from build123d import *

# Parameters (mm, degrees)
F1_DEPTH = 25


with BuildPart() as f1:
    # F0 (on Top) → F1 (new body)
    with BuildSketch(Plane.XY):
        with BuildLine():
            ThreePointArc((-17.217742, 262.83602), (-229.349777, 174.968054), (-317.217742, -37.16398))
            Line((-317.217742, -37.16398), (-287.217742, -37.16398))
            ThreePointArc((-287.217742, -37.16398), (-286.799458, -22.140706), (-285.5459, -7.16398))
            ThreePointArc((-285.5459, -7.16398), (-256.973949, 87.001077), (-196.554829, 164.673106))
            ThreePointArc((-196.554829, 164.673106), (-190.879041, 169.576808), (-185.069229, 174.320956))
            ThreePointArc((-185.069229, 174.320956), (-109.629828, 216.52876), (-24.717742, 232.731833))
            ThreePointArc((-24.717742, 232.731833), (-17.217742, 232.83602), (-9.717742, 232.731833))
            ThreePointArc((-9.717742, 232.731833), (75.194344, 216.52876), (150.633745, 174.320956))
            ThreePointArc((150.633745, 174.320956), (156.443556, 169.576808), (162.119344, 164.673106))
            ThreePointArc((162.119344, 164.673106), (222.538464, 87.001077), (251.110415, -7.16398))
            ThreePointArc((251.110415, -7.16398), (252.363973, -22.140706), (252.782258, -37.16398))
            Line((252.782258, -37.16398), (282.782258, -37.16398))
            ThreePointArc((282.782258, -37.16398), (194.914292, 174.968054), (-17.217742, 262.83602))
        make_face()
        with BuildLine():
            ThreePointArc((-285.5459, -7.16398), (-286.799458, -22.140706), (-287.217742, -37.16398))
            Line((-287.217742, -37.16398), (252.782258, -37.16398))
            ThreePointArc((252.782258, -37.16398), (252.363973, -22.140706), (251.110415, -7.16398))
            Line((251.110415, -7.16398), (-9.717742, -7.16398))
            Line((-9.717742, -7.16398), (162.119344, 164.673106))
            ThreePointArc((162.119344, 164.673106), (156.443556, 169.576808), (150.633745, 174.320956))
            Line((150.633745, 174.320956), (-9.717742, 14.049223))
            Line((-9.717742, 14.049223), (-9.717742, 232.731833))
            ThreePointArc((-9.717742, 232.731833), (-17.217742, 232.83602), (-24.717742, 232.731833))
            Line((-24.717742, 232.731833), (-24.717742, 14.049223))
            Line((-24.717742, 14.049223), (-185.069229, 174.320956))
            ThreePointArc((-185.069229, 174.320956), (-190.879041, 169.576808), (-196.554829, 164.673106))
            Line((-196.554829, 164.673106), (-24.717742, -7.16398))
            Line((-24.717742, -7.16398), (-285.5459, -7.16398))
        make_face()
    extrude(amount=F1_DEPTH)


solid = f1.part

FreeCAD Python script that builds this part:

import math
import FreeCAD as App
import Part
import Sketcher

V = App.Vector
Q = App.Units.Quantity

doc = App.newDocument("Part")
body = doc.addObject("PartDesign::Body", "Body")

# Sketch on XY plane
sketch1 = body.newObject("Sketcher::SketchObject", "Sketch")
sketch1.AttachmentSupport = (doc.getObject("XY_Plane"), [""])
sketch1.MapMode = "FlatFace"
sketch1.addGeometry([
    Part.ArcOfCircle(Part.Circle(V(-17.217742, -37.16398, 0), V(0, 0, 1), 300), math.radians(90), math.radians(180)),  # 0
    Part.LineSegment(V(-317.217742, -37.16398, 0), V(282.782258, -37.16398, 0)),  # 1
    Part.ArcOfCircle(Part.Circle(V(-17.217743, -37.163981, 0), V(0, 0, 1), 300.000001), math.radians(0), math.radians(90)),  # 2
    Part.ArcOfCircle(Part.Circle(V(-17.217741, -37.163981, 0), V(0, 0, 1), 270.000002), math.radians(131.621857), math.radians(173.62063)),  # 3
    Part.LineSegment(V(-196.554829, 164.673106, 0), V(-24.717742, -7.16398, 0)),  # 4
    Part.LineSegment(V(-24.717742, -7.16398, 0), V(-285.5459, -7.16398, 0)),  # 5
    Part.ArcOfCircle(Part.Circle(V(-17.217743, -37.163976, 0), V(0, 0, 1), 269.999996), math.radians(91.591754), math.radians(128.438349)),  # 6
    Part.LineSegment(V(-24.717742, 232.731833, 0), V(-24.717742, 14.049223, 0)),  # 7
    Part.LineSegment(V(-24.717742, 14.049223, 0), V(-185.069229, 174.320956, 0)),  # 8
    Part.ArcOfCircle(Part.Circle(V(-17.217741, -37.163976, 0), V(0, 0, 1), 269.999996), math.radians(51.561651), math.radians(88.408246)),  # 9
    Part.LineSegment(V(150.633745, 174.320956, 0), V(-9.717742, 14.049223, 0)),  # 10
    Part.LineSegment(V(-9.717742, 14.049223, 0), V(-9.717742, 232.731833, 0)),  # 11
    Part.ArcOfCircle(Part.Circle(V(-17.217744, -37.163981, 0), V(0, 0, 1), 270.000002), math.radians(6.37937), math.radians(48.378143)),  # 12
    Part.LineSegment(V(251.110415, -7.16398, 0), V(-9.717742, -7.16398, 0)),  # 13
    Part.LineSegment(V(-9.717742, -7.16398, 0), V(162.119344, 164.673106, 0)),  # 14
], False)
sketch1.addConstraint([
    Sketcher.Constraint("Coincident", 0, 2, 1, 1),
    Sketcher.Constraint("Coincident", 1, 2, 2, 1),
    Sketcher.Constraint("Tangent", 2, 2, 0, 1),
    Sketcher.Constraint("Coincident", 3, 1, 4, 1),
    Sketcher.Constraint("Coincident", 4, 2, 5, 1),
    Sketcher.Constraint("Coincident", 5, 2, 3, 2),
    Sketcher.Constraint("Coincident", 6, 1, 7, 1),
    Sketcher.Constraint("Coincident", 7, 2, 8, 1),
    Sketcher.Constraint("Coincident", 8, 2, 6, 2),
    Sketcher.Constraint("Coincident", 9, 1, 10, 1),
    Sketcher.Constraint("Coincident", 10, 2, 11, 1),
    Sketcher.Constraint("Coincident", 11, 2, 9, 2),
    Sketcher.Constraint("Coincident", 12, 1, 13, 1),
    Sketcher.Constraint("Coincident", 13, 2, 14, 1),
    Sketcher.Constraint("Coincident", 14, 2, 12, 2),
    Sketcher.Constraint("Horizontal", 1),
    Sketcher.Constraint("Horizontal", 5),
    Sketcher.Constraint("Vertical", 7),
    Sketcher.Constraint("Vertical", 11),
    Sketcher.Constraint("Horizontal", 13),
    Sketcher.Constraint("Coincident", 3, 3, 0, 3),
    Sketcher.Constraint("Coincident", 6, 3, 0, 3),
    Sketcher.Constraint("Coincident", 9, 3, 0, 3),
    Sketcher.Constraint("Coincident", 12, 3, 0, 3),
    Sketcher.Constraint("Equal", 0, 2),
    Sketcher.Constraint("Equal", 6, 9),
    Sketcher.Constraint("Equal", 3, 12),
    Sketcher.Constraint("Perpendicular", 4, 14),
    Sketcher.Constraint("Horizontal", 12, 3, 0, 2),
    Sketcher.Constraint("Horizontal", 8, 2, 9, 1),
    Sketcher.Constraint("Horizontal", 7, 2, 10, 2),
    Sketcher.Constraint("Horizontal", 6, 1, 11, 2),
    Sketcher.Constraint("Horizontal", 5, 2, 12, 1),
    Sketcher.Constraint("Horizontal", 3, 1, 14, 2),
    Sketcher.Constraint("Vertical", 12, 3, 2, 2),
    Sketcher.Constraint("Vertical", 4, 2, 6, 1),
    Sketcher.Constraint("Vertical", 11, 2, 13, 2),
    Sketcher.Constraint("Radius", 0, Q("300 mm")),
    Sketcher.Constraint("Radius", 3, Q("270.000002 mm")),
    Sketcher.Constraint("DistanceY", 0, 3, 4, 2, Q("30 mm")),
    Sketcher.Constraint("DistanceX", 7, 2, 10, 2, Q("15 mm")),
    Sketcher.Constraint("Radius", 6, Q("269.999996 mm")),
    Sketcher.Constraint("DistanceY", 7, 2, 7, 1, Q("218.68261 mm")),
    Sketcher.Constraint("DistanceX", 5, 2, -1, 1, Q("285.5459 mm")),
    Sketcher.Constraint("DistanceX", 3, 1, 8, 2, Q("11.4856 mm")),
    Sketcher.Constraint("DistanceY", 0, 3, -1, 1, Q("37.16398 mm")),
])
pad1 = body.newObject("PartDesign::Pad", "Pad")
pad1.Profile = sketch1
pad1.Length = 25

doc.recompute()
